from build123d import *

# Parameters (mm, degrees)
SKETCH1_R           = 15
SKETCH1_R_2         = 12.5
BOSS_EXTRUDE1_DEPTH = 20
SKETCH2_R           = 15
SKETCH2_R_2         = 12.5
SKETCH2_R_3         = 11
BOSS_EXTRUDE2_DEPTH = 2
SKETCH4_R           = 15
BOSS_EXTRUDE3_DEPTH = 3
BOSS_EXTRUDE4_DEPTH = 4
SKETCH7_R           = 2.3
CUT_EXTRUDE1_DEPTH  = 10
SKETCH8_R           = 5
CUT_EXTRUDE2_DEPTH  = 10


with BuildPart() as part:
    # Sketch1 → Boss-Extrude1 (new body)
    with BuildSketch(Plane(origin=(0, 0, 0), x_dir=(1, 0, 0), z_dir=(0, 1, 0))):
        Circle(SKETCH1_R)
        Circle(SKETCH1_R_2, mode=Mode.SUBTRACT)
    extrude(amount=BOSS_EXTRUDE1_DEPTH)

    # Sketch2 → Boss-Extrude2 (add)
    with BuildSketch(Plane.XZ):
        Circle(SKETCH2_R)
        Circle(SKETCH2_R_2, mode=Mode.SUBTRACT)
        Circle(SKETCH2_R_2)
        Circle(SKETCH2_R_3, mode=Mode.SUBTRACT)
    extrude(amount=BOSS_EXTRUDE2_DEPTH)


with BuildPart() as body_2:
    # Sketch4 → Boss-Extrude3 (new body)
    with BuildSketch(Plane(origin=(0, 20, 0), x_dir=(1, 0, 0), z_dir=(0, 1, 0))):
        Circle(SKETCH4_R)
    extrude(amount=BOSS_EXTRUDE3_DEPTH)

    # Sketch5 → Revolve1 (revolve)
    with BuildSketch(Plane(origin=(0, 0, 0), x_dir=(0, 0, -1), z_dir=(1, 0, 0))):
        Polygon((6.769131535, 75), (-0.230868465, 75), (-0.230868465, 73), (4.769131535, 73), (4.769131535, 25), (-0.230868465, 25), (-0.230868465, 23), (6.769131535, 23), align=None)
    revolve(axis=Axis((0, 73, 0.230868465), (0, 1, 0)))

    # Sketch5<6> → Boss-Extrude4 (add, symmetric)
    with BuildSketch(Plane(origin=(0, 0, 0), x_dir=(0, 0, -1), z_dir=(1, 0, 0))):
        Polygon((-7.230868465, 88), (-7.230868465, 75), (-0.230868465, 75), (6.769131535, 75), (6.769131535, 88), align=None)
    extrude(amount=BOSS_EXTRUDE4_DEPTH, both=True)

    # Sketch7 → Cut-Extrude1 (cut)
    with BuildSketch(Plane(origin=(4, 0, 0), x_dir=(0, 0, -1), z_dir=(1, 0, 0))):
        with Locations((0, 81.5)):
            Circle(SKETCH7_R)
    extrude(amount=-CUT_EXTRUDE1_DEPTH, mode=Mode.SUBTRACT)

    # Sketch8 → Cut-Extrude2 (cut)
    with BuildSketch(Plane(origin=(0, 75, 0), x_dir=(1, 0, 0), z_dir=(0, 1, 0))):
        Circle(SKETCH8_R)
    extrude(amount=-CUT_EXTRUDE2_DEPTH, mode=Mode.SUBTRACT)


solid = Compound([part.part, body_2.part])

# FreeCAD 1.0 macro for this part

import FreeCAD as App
import Part
import Sketcher

V = App.Vector
Q = App.Units.Quantity

doc = App.newDocument("Part")
body = doc.addObject("PartDesign::Body", "Body")

sketch1 = body.newObject("Sketcher::SketchObject", "Sketch")
sketch1.AttachmentSupport = (doc.getObject("XZ_Plane"), [""])
sketch1.MapMode = "FlatFace"
sketch1.addGeometry([
    Part.Circle(V(0, 0, 0), V(0, 0, 1), 15),
    Part.Circle(V(0, 0, 0), V(0, 0, 1), 12),
], False)
sketch1.addConstraint([
    Sketcher.Constraint("Coincident", 0, 3, -1, 1),
    Sketcher.Constraint("Coincident", 1, 3, -1, 1),
    Sketcher.Constraint("Diameter", 0, Q("30 mm")),
    Sketcher.Constraint("Diameter", 1, Q("25 mm")),
])
pad1 = body.newObject("PartDesign::Pad", "Pad")
pad1.Profile = sketch1
pad1.Length = 20
pad1.Reversed = True

sketch2 = body.newObject("Sketcher::SketchObject", "Sketch001")
sketch2.AttachmentSupport = (doc.getObject("XZ_Plane"), [""])
sketch2.MapMode = "FlatFace"
sketch2.addGeometry([
    Part.Circle(V(0, 0, 0), V(0, 0, 1), 15),
    Part.Circle(V(0, 0, 0), V(0, 0, 1), 11),
], False)
sketch2.addConstraint([
    Sketcher.Constraint("Coincident", 0, 3, -1, 1),
    Sketcher.Constraint("Coincident", 1, 3, -1, 1),
    Sketcher.Constraint("Diameter", 0, Q("30 mm")),
    Sketcher.Constraint("Diameter", 1, Q("22 mm")),
])
pad2 = body.newObject("PartDesign::Pad", "Pad001")
pad2.Profile = sketch2
pad2.Length = 2
body2 = doc.addObject("PartDesign::Body", "Body001")

sketch3 = body2.newObject("Sketcher::SketchObject", "Sketch002")
sketch3.AttachmentSupport = (doc.getObject("XZ_Plane001"), [""])
sketch3.MapMode = "FlatFace"
sketch3.AttachmentOffset = App.Placement(V(0, 0, -20), App.Rotation())
sketch3.addGeometry(Part.Circle(V(0, 0, 0), V(0, 0, 1), 15), False)
sketch3.addConstraint([
    Sketcher.Constraint("Coincident", 0, 3, -1, 1),
    Sketcher.Constraint("Diameter", 0, Q("30 mm")),
])
pad3 = body2.newObject("PartDesign::Pad", "Pad002")
pad3.Profile = sketch3
pad3.Length = 3
pad3.Reversed = True

sketch4 = body2.newObject("Sketcher::SketchObject", "Sketch003")
sketch4.AttachmentSupport = (doc.getObject("YZ_Plane001"), [""])
sketch4.MapMode = "FlatFace"
sketch4.addGeometry([
    Part.LineSegment(V(75, -6.8, 0), V(75, 0.2, 0)),
    Part.LineSegment(V(75, 0.2, 0), V(73, 0.2, 0)),
    Part.LineSegment(V(73, 0.2, 0), V(73, -4.8, 0)),
    Part.LineSegment(V(73, -4.8, 0), V(25, -4.8, 0)),
    Part.LineSegment(V(25, -4.8, 0), V(25, 0.2, 0)),
    Part.LineSegment(V(25, 0.2, 0), V(23, 0.2, 0)),
    Part.LineSegment(V(23, 0.2, 0), V(23, -6.8, 0)),
    Part.LineSegment(V(23, -6.8, 0), V(75, -6.8, 0)),
], False)
sketch4.addGeometry(Part.LineSegment(V(23, 0.2, 0), V(75, 0.2, 0)), True)
sketch4.addConstraint([
    Sketcher.Constraint("Coincident", 0, 2, 1, 1),
    Sketcher.Constraint("Coincident", 1, 2, 2, 1),
    Sketcher.Constraint("Coincident", 2, 2, 3, 1),
    Sketcher.Constraint("Coincident", 3, 2, 4, 1),
    Sketcher.Constraint("Coincident", 4, 2, 5, 1),
    Sketcher.Constraint("Coincident", 5, 2, 6, 1),
    Sketcher.Constraint("Coincident", 6, 2, 7, 1),
    Sketcher.Constraint("Coincident", 7, 2, 0, 1),
    Sketcher.Constraint("Vertical", 0),
    Sketcher.Constraint("Horizontal", 1),
    Sketcher.Constraint("Vertical", 2),
    Sketcher.Constraint("Horizontal", 3),
    Sketcher.Constraint("Vertical", 4),
    Sketcher.Constraint("Horizontal", 5),
    Sketcher.Constraint("Vertical", 6),
    Sketcher.Constraint("Horizontal", 7),
    Sketcher.Constraint("Horizontal", 8),
    Sketcher.Constraint("Coincident", 8, 1, 5, 2),
    Sketcher.Constraint("Coincident", 8, 2, 0, 2),
    Sketcher.Constraint("Equal", 1, 5),
    Sketcher.Constraint("DistanceX", 1, 2, 1, 1, Q("2 mm")),
    Sketcher.Constraint("DistanceX", 3, 2, 3, 1, Q("48 mm")),
    Sketcher.Constraint("DistanceY", 0, 1, 0, 2, Q("7 mm")),
    Sketcher.Constraint("DistanceY", 2, 2, 2, 1, Q("5 mm")),
    Sketcher.Constraint("DistanceX", -1, 1, 0, 2, Q("75 mm")),
    Sketcher.Constraint("DistanceY", -1, 1, 0, 2, Q("0.230868 mm")),
])
revolution = body2.newObject("PartDesign::Revolution", "Revolution")
revolution.Profile = sketch4
revolution.ReferenceAxis = (sketch4, ["Axis0"])
revolution.Angle = 360

sketch5 = body2.newObject("Sketcher::SketchObject", "Sketch004")
sketch5.AttachmentSupport = (doc.getObject("YZ_Plane001"), [""])
sketch5.MapMode = "FlatFace"
sketch5.addGeometry([
    Part.LineSegment(V(88, 7, 0), V(75, 7, 0)),
    Part.LineSegment(V(75, 7, 0), V(75, -7, 0)),
    Part.LineSegment(V(75, -7, 0), V(88, -7, 0)),
    Part.LineSegment(V(88, -7, 0), V(88, 7, 0)),
], False)
sketch5.addConstraint([
    Sketcher.Constraint("Coincident", 0, 2, 1, 1),
    Sketcher.Constraint("Coincident", 1, 2, 2, 1),
    Sketcher.Constraint("Coincident", 2, 2, 3, 1),
    Sketcher.Constraint("Coincident", 3, 2, 0, 1),
    Sketcher.Constraint("Horizontal", 0),
    Sketcher.Constraint("Vertical", 1),
    Sketcher.Constraint("Horizontal", 2),
    Sketcher.Constraint("Vertical", 3),
    Sketcher.Constraint("DistanceX", 0, 2, 0, 1, Q("13 mm")),
    Sketcher.Constraint("DistanceY", 1, 2, 1, 1, Q("14 mm")),
    Sketcher.Constraint("DistanceX", -1, 1, 0, 2, Q("75 mm")),
    Sketcher.Constraint("DistanceY", -1, 1, 0, 2, Q("7.230868 mm")),
])
pad4 = body2.newObject("PartDesign::Pad", "Pad003")
pad4.Profile = sketch5
pad4.Length = 8
pad4.Midplane = True

sketch6 = body2.newObject("Sketcher::SketchObject", "Sketch005")
sketch6.AttachmentSupport = (doc.getObject("YZ_Plane001"), [""])
sketch6.MapMode = "FlatFace"
sketch6.AttachmentOffset = App.Placement(V(0, 0, 4), App.Rotation())
sketch6.addGeometry(Part.Circle(V(81.5, 0, 0), V(0, 0, 1), 2.3), False)
sketch6.addConstraint([
    Sketcher.Constraint("PointOnObject", 0, 3, -1),
    Sketcher.Constraint("Diameter", 0, Q("4.6 mm")),
    Sketcher.Constraint("DistanceX", -1, 1, 0, 3, Q("81.5 mm")),
])
pocket1 = body2.newObject("PartDesign::Pocket", "Pocket")
pocket1.Profile = sketch6
pocket1.Length = 10

sketch7 = body2.newObject("Sketcher::SketchObject", "Sketch006")
sketch7.AttachmentSupport = (doc.getObject("XZ_Plane001"), [""])
sketch7.MapMode = "FlatFace"
sketch7.AttachmentOffset = App.Placement(V(0, 0, -75), App.Rotation())
sketch7.addGeometry(Part.Circle(V(0, 0, 0), V(0, 0, 1), 5), False)
sketch7.addConstraint([
    Sketcher.Constraint("Coincident", 0, 3, -1, 1),
    Sketcher.Constraint("Diameter", 0, Q("10 mm")),
])
pocket2 = body2.newObject("PartDesign::Pocket", "Pocket001")
pocket2.Profile = sketch7
pocket2.Length = 10
pocket2.Reversed = True

doc.recompute()
